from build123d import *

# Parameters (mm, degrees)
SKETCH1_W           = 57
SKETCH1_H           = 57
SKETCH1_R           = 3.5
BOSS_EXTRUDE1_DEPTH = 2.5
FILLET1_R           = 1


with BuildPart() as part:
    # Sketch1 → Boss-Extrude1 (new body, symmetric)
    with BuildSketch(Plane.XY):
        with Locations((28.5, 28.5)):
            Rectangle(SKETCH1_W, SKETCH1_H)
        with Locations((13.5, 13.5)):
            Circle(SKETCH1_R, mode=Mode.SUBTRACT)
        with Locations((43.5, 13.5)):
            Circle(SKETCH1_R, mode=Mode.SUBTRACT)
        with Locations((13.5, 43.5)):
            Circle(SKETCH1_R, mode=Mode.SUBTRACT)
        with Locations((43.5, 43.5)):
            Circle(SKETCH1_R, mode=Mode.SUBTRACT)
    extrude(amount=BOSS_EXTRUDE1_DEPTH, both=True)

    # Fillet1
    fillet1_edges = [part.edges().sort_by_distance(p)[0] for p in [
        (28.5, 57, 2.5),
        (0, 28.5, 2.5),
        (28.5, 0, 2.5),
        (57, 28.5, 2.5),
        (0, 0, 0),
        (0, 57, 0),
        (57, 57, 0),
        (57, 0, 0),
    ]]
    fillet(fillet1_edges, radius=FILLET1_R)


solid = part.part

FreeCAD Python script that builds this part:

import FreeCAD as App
import Part
import Sketcher

V = App.Vector
Q = App.Units.Quantity


def edges_at(feature, points):
    """Names of the edges that pass closest to the given points."""
    edges = feature.Shape.Edges
    near = lambda p: min(range(len(edges)), key=lambda i: edges[i].distToShape(Part.Vertex(*p))[0])
    return sorted({f"Edge{near(p) + 1}" for p in points})

doc = App.newDocument("Part")
body = doc.addObject("PartDesign::Body", "Body")

# Sketch on XY plane
sketch1 = body.newObject("Sketcher::SketchObject", "Sketch")
sketch1.AttachmentSupport = (doc.getObject("XY_Plane"), [""])
sketch1.MapMode = "FlatFace"
sketch1.addGeometry([
    Part.LineSegment(V(0, 57, 0), V(0, 0, 0)),  # 0
    Part.LineSegment(V(0, 0, 0), V(57, 0, 0)),  # 1
    Part.LineSegment(V(57, 0, 0), V(57, 57, 0)),  # 2
    Part.LineSegment(V(57, 57, 0), V(0, 57, 0)),  # 3
    Part.Circle(V(13.5, 13.5, 0), V(0, 0, 1), 3.5),  # 4
    Part.Circle(V(43.5, 13.5, 0), V(0, 0, 1), 3.5),  # 5
    Part.Circle(V(13.5, 43.5, 0), V(0, 0, 1), 3.5),  # 6
    Part.Circle(V(43.5, 43.5, 0), V(0, 0, 1), 3.5),  # 7
], False)
sketch1.addConstraint([
    Sketcher.Constraint("Coincident", 0, 2, 1, 1),
    Sketcher.Constraint("Coincident", 1, 2, 2, 1),
    Sketcher.Constraint("Coincident", 2, 2, 3, 1),
    Sketcher.Constraint("Coincident", 3, 2, 0, 1),
    Sketcher.Constraint("Vertical", 0),
    Sketcher.Constraint("Horizontal", 1),
    Sketcher.Constraint("Vertical", 2),
    Sketcher.Constraint("Horizontal", 3),
    Sketcher.Constraint("Coincident", 0, 2, -1, 1),
    Sketcher.Constraint("Equal", 4, 5),
    Sketcher.Constraint("Equal", 5, 6),
    Sketcher.Constraint("Equal", 6, 7),
    Sketcher.Constraint("Horizontal", 4, 3, 5, 3),
    Sketcher.Constraint("Horizontal", 6, 3, 7, 3),
    Sketcher.Constraint("Vertical", 4, 3, 6, 3),
    Sketcher.Constraint("Vertical", 5, 3, 7, 3),
    Sketcher.Constraint("Equal", 3, 0),
    Sketcher.Constraint("Diameter", 4, Q("7 mm")),
    Sketcher.Constraint("DistanceX", 1, 1, 1, 2, Q("57 mm")),
    Sketcher.Constraint("DistanceX", 4, 3, 5, 3, Q("30 mm")),
    Sketcher.Constraint("DistanceY", 4, 3, 6, 3, Q("30 mm")),
    Sketcher.Constraint("DistanceX", -1, 1, 4, 3, Q("13.5 mm")),
    Sketcher.Constraint("DistanceY", -1, 1, 4, 3, Q("13.5 mm")),
])
pad1 = body.newObject("PartDesign::Pad", "Pad")
pad1.Profile = sketch1
pad1.Length = 5
pad1.Midplane = True
doc.recompute()

fillet = body.newObject("PartDesign::Fillet", "Fillet")
fillet.Base = (pad1, edges_at(pad1, [
    (28.5, 57, 2.5),
    (0, 28.5, 2.5),
    (28.5, 0, 2.5),
    (57, 28.5, 2.5),
    (0, 0, 0),
    (0, 57, 0),
    (57, 57, 0),
    (57, 0, 0),
]))
fillet.Radius = 1

doc.recompute()
